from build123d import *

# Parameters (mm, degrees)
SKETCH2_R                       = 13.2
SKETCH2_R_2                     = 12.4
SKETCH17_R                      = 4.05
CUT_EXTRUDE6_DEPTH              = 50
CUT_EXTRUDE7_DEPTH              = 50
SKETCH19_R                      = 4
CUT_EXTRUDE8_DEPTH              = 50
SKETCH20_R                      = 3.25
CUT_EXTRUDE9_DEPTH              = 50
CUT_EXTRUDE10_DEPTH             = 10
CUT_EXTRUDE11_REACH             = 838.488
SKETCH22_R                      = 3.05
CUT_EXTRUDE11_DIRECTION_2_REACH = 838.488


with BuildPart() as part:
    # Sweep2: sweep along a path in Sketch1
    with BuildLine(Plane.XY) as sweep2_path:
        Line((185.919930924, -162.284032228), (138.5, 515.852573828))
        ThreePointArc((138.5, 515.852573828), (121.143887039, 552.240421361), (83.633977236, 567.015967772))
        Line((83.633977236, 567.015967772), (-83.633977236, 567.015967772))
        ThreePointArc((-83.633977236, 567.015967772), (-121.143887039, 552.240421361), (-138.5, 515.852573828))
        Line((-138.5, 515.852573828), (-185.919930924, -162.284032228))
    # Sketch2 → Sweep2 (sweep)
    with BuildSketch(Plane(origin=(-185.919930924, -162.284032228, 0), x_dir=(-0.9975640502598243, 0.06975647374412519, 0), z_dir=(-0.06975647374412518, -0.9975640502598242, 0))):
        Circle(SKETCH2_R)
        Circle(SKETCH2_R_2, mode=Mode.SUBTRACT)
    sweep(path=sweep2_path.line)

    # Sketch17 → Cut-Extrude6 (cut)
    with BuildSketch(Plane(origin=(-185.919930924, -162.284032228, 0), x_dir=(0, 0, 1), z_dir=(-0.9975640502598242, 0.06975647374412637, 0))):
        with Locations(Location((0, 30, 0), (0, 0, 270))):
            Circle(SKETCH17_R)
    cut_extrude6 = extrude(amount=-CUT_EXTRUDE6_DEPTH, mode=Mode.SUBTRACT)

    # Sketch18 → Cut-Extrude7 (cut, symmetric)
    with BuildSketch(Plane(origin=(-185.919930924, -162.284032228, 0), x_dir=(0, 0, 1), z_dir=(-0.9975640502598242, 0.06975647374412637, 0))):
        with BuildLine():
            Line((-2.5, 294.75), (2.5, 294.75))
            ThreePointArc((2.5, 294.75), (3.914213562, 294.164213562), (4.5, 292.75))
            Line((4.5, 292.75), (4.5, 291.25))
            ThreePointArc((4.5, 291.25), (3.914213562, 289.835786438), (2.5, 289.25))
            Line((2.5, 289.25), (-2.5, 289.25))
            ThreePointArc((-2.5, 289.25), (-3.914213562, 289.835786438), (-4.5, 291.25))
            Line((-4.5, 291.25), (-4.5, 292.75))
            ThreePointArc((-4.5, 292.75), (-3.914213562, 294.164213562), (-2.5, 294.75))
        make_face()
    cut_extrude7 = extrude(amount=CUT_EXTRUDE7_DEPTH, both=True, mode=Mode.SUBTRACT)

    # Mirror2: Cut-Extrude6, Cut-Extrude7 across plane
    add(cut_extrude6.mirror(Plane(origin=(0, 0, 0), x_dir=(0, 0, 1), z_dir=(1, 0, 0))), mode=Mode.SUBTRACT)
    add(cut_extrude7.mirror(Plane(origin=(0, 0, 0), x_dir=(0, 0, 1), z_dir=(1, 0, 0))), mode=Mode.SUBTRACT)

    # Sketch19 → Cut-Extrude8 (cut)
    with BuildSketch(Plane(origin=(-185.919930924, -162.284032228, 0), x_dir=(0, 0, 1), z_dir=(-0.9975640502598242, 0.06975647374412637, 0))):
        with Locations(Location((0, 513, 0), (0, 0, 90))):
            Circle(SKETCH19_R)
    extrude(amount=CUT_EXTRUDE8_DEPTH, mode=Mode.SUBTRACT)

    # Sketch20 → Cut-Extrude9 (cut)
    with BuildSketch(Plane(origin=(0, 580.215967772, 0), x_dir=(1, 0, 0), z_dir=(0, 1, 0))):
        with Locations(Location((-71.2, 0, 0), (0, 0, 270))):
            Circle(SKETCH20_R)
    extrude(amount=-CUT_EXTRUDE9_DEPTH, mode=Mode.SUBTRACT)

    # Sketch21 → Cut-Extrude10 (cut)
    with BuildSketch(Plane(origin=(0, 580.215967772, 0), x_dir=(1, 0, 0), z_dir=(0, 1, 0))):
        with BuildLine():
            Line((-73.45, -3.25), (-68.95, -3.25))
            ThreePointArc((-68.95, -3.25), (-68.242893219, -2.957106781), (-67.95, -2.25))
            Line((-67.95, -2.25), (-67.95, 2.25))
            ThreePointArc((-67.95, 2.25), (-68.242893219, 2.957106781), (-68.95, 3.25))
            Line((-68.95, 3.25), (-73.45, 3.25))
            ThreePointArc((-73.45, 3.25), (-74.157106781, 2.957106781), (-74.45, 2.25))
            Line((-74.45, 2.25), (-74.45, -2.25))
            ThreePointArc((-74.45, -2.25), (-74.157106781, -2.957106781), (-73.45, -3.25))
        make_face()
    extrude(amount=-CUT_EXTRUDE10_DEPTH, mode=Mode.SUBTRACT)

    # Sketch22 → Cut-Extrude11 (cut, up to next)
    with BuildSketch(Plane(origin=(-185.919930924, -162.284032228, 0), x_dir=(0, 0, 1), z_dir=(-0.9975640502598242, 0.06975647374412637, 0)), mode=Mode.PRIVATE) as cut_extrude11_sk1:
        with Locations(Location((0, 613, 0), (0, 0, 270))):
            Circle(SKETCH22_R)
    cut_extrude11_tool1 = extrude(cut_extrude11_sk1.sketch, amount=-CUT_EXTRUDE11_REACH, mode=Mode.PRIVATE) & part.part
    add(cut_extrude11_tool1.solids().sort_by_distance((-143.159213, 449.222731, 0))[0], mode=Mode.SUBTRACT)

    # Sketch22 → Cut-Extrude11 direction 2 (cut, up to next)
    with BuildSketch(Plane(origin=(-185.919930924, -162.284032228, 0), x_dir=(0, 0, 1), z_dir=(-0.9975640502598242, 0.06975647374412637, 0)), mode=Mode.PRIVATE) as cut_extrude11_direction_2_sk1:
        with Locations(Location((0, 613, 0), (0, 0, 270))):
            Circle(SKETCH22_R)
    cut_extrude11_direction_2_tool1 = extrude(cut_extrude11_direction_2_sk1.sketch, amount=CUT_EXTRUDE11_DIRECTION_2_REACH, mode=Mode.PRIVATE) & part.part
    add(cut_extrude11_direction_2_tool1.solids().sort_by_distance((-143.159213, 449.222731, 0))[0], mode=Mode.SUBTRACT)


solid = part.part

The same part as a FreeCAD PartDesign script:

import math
import FreeCAD as App
import Part
import Sketcher
from FreeCAD import Vector
Q = App.Units.Quantity

doc = App.newDocument("Part")
params = doc.addObject("Spreadsheet::Sheet", "Params")
for row, (alias, value) in enumerate([
    ("sketch1_diameter", "26.4 mm"),
    ("sketch1_diameter2", "24.8 mm"),
    ("sketch2_radius", "55 mm"),
    ("sketch3_diameter", "8.1 mm"),
    ("pocket1_length", "50 mm"),
    ("sketch4_radius", "2 mm"),
    ("sketch4_width", "5 mm"),
    ("sketch4_height", "1.5 mm"),
    ("pocket2_length", "100 mm"),
    ("sketch5_diameter", "8 mm"),
    ("pocket3_length", "50 mm"),
    ("sketch6_diameter", "6.5 mm"),
    ("pocket4_length", "50 mm"),
    ("sketch7_radius", "1 mm"),
    ("sketch7_width", "4.5 mm"),
    ("pocket5_length", "10 mm"),
    ("sketch8_diameter", "6.1 mm"),
    ("pocket6_length", "13.2 mm"),
    ("sketch9_diameter", "6.1 mm"),
    ("pocket7_length", "13.2 mm"),
], start=1):
    params.set(f"A{row}", alias)
    params.set(f"B{row}", "=" + value)
    params.setAlias(f"B{row}", alias)

body = doc.addObject("PartDesign::Body", "Body")

sketch1 = body.newObject("Sketcher::SketchObject", "Sketch")
sketch1.Placement = App.Placement(Vector(-185.919931, -162.284032, 0), App.Rotation(Vector(-0.99756405, 0.069756474, 0), Vector(0, 0, -1), Vector(-0.069756474, -0.99756405, 0), "ZXY"))
sketch1.addGeometry([
    Part.Circle(Vector(0, 0, 0), Vector(0, 0, 1), 13.2),
    Part.Circle(Vector(0, 0, 0), Vector(0, 0, 1), 12.4),
], False)
sketch1.addConstraint([
    Sketcher.Constraint("Coincident", 0, 3, -1, 1),
    Sketcher.Constraint("Coincident", 1, 3, -1, 1),
    Sketcher.Constraint("Diameter", 0, Q("26.4 mm")),
    Sketcher.Constraint("Diameter", 1, Q("24.8 mm")),
])
sketch1.setExpression("Constraints[2]", "Params.sketch1_diameter")
sketch1.setExpression("Constraints[3]", "Params.sketch1_diameter2")

sketch2 = body.newObject("Sketcher::SketchObject", "Sketch001")
sketch2.AttachmentSupport = (doc.getObject("XY_Plane"), [""])
sketch2.MapMode = "FlatFace"
sketch2.addGeometry([
    Part.LineSegment(Vector(185.919931, -162.284032, 0), Vector(138.5, 515.852574, 0)),
    Part.ArcOfCircle(Part.Circle(Vector(83.633977, 512.015968, 0), Vector(0, 0, 1), 55), math.radians(4), math.radians(90)),
    Part.LineSegment(Vector(83.633977, 567.015968, 0), Vector(-83.633977, 567.015968, 0)),
    Part.ArcOfCircle(Part.Circle(Vector(-83.633977, 512.015968, 0), Vector(0, 0, 1), 55), math.radians(90), math.radians(176)),
    Part.LineSegment(Vector(-138.5, 515.852574, 0), Vector(-185.919931, -162.284032, 0)),
], False)
sketch2.addConstraint([
    Sketcher.Constraint("Tangent", 0, 2, 1, 1),
    Sketcher.Constraint("Tangent", 1, 2, 2, 1),
    Sketcher.Constraint("Tangent", 2, 2, 3, 1),
    Sketcher.Constraint("Tangent", 3, 2, 4, 1),
    Sketcher.Constraint("Horizontal", 2),
    Sketcher.Constraint("Equal", 1, 3),
    Sketcher.Constraint("Symmetric", 0, 2, 3, 2, -2),
    Sketcher.Constraint("Horizontal", 0, 1, 4, 2),
    Sketcher.Constraint("Radius", 1, Q("55 mm")),
    Sketcher.Constraint("Angle", 0, Q("94 deg")),
    Sketcher.Constraint("DistanceX", 3, 2, 0, 2, Q("277 mm")),
    Sketcher.Constraint("DistanceY", 0, 1, 1, 3, Q("674.3 mm")),
    Sketcher.Constraint("DistanceY", -1, 1, 1, 3, Q("512.015968 mm")),
])
sketch2.setExpression("Constraints[8]", "Params.sketch2_radius")
doc.recompute()

additivepipe = body.newObject("PartDesign::AdditivePipe", "AdditivePipe")
additivepipe.Profile = sketch1
additivepipe.Spine = (sketch2, ["Edge1", "Edge2", "Edge3", "Edge4", "Edge5"])

sketch3 = body.newObject("Sketcher::SketchObject", "Sketch002")
sketch3.Placement = App.Placement(Vector(-185.919931, -162.284032, 0), App.Rotation(Vector(0, 0, 1), Vector(0.069756474, 0.99756405, 0), Vector(-0.99756405, 0.069756474, 0), "ZXY"))
sketch3.addGeometry(Part.Circle(Vector(0, 30, 0), Vector(0, 0, 1), 4.05), False)
sketch3.addConstraint([
    Sketcher.Constraint("PointOnObject", 0, 3, -2),
    Sketcher.Constraint("Diameter", 0, Q("8.1 mm")),
    Sketcher.Constraint("DistanceY", -1, 1, 0, 3, Q("30 mm")),
])
sketch3.setExpression("Constraints[1]", "Params.sketch3_diameter")
pocket1 = body.newObject("PartDesign::Pocket", "Pocket")
pocket1.Profile = sketch3
pocket1.setExpression("Length", "Params.pocket1_length")

sketch4 = body.newObject("Sketcher::SketchObject", "Sketch003")
sketch4.Placement = App.Placement(Vector(-185.919931, -162.284032, 0), App.Rotation(Vector(0, 0, 1), Vector(0.069756474, 0.99756405, 0), Vector(-0.99756405, 0.069756474, 0), "ZXY"))
sketch4.addGeometry([
    Part.LineSegment(Vector(2.5, 294.75, 0), Vector(-2.5, 294.75, 0)),
    Part.ArcOfCircle(Part.Circle(Vector(-2.5, 292.75, 0), Vector(0, 0, 1), 2), math.radians(90), math.radians(180)),
    Part.LineSegment(Vector(-4.5, 292.75, 0), Vector(-4.5, 291.25, 0)),
    Part.ArcOfCircle(Part.Circle(Vector(-2.5, 291.25, 0), Vector(0, 0, 1), 2), math.radians(-180), math.radians(-90)),
    Part.LineSegment(Vector(-2.5, 289.25, 0), Vector(2.5, 289.25, 0)),
    Part.ArcOfCircle(Part.Circle(Vector(2.5, 291.25, 0), Vector(0, 0, 1), 2), math.radians(-90), math.radians(0)),
    Part.LineSegment(Vector(4.5, 291.25, 0), Vector(4.5, 292.75, 0)),
    Part.ArcOfCircle(Part.Circle(Vector(2.5, 292.75, 0), Vector(0, 0, 1), 2), math.radians(0), math.radians(90)),
], False)
sketch4.addConstraint([
    Sketcher.Constraint("Tangent", 0, 2, 1, 1),
    Sketcher.Constraint("Tangent", 1, 2, 2, 1),
    Sketcher.Constraint("Tangent", 2, 2, 3, 1),
    Sketcher.Constraint("Tangent", 3, 2, 4, 1),
    Sketcher.Constraint("Tangent", 4, 2, 5, 1),
    Sketcher.Constraint("Tangent", 5, 2, 6, 1),
    Sketcher.Constraint("Tangent", 6, 2, 7, 1),
    Sketcher.Constraint("Tangent", 7, 2, 0, 1),
    Sketcher.Constraint("Horizontal", 0),
    Sketcher.Constraint("Vertical", 2),
    Sketcher.Constraint("Horizontal", 4),
    Sketcher.Constraint("Vertical", 6),
    Sketcher.Constraint("Equal", 1, 3),
    Sketcher.Constraint("Equal", 3, 5),
    Sketcher.Constraint("Equal", 5, 7),
    Sketcher.Constraint("Radius", 1, Q("2 mm")),
    Sketcher.Constraint("DistanceX", 0, 2, 0, 1, Q("5 mm")),
    Sketcher.Constraint("DistanceY", 2, 2, 2, 1, Q("1.5 mm")),
    Sketcher.Constraint("DistanceX", 1, 3, -1, 1, Q("2.5 mm")),
    Sketcher.Constraint("DistanceY", -1, 1, 1, 3, Q("292.75 mm")),
])
sketch4.setExpression("Constraints[15]", "Params.sketch4_radius")
sketch4.setExpression("Constraints[16]", "Params.sketch4_width")
sketch4.setExpression("Constraints[17]", "Params.sketch4_height")
pocket2 = body.newObject("PartDesign::Pocket", "Pocket001")
pocket2.Profile = sketch4
pocket2.setExpression("Length", "Params.pocket2_length")
pocket2.Midplane = True
doc.recompute()

mirrored = body.newObject("PartDesign::Mirrored", "Mirrored")
mirrored.Originals = [pocket1, pocket2]
mirrored.MirrorPlane = (doc.getObject("YZ_Plane"), [""])
body.Tip = mirrored

sketch5 = body.newObject("Sketcher::SketchObject", "Sketch004")
sketch5.Placement = App.Placement(Vector(-185.919931, -162.284032, 0), App.Rotation(Vector(0, 0, 1), Vector(0.069756474, 0.99756405, 0), Vector(-0.99756405, 0.069756474, 0), "ZXY"))
sketch5.addGeometry(Part.Circle(Vector(0, 513, 0), Vector(0, 0, 1), 4), False)
sketch5.addConstraint([
    Sketcher.Constraint("PointOnObject", 0, 3, -2),
    Sketcher.Constraint("Diameter", 0, Q("8 mm")),
    Sketcher.Constraint("DistanceY", -1, 1, 0, 3, Q("513 mm")),
])
sketch5.setExpression("Constraints[1]", "Params.sketch5_diameter")
pocket3 = body.newObject("PartDesign::Pocket", "Pocket002")
pocket3.Profile = sketch5
pocket3.setExpression("Length", "Params.pocket3_length")
pocket3.Reversed = True

sketch6 = body.newObject("Sketcher::SketchObject", "Sketch005")
sketch6.AttachmentSupport = (doc.getObject("XZ_Plane"), [""])
sketch6.MapMode = "FlatFace"
sketch6.AttachmentOffset = App.Placement(Vector(0, 0, -580.215968), App.Rotation())
sketch6.addGeometry(Part.Circle(Vector(-71.2, 0, 0), Vector(0, 0, 1), 3.25), False)
sketch6.addConstraint([
    Sketcher.Constraint("PointOnObject", 0, 3, -1),
    Sketcher.Constraint("Diameter", 0, Q("6.5 mm")),
    Sketcher.Constraint("DistanceX", 0, 3, -1, 1, Q("71.2 mm")),
])
sketch6.setExpression("Constraints[1]", "Params.sketch6_diameter")
pocket4 = body.newObject("PartDesign::Pocket", "Pocket003")
pocket4.Profile = sketch6
pocket4.setExpression("Length", "Params.pocket4_length")
pocket4.Reversed = True

sketch7 = body.newObject("Sketcher::SketchObject", "Sketch006")
sketch7.AttachmentSupport = (doc.getObject("XZ_Plane"), [""])
sketch7.MapMode = "FlatFace"
sketch7.AttachmentOffset = App.Placement(Vector(0, 0, -580.215968), App.Rotation())
sketch7.addGeometry([
    Part.LineSegment(Vector(-73.45, 3.25, 0), Vector(-68.95, 3.25, 0)),
    Part.ArcOfCircle(Part.Circle(Vector(-68.95, 2.25, 0), Vector(0, 0, 1), 1), math.radians(0), math.radians(90)),
    Part.LineSegment(Vector(-67.95, 2.25, 0), Vector(-67.95, -2.25, 0)),
    Part.ArcOfCircle(Part.Circle(Vector(-68.95, -2.25, 0), Vector(0, 0, 1), 1), math.radians(-90), math.radians(0)),
    Part.LineSegment(Vector(-68.95, -3.25, 0), Vector(-73.45, -3.25, 0)),
    Part.ArcOfCircle(Part.Circle(Vector(-73.45, -2.25, 0), Vector(0, 0, 1), 1), math.radians(-180), math.radians(-90)),
    Part.LineSegment(Vector(-74.45, -2.25, 0), Vector(-74.45, 2.25, 0)),
    Part.ArcOfCircle(Part.Circle(Vector(-73.45, 2.25, 0), Vector(0, 0, 1), 1), math.radians(90), math.radians(180)),
], False)
sketch7.addConstraint([
    Sketcher.Constraint("Tangent", 0, 2, 1, 2),
    Sketcher.Constraint("Tangent", 1, 1, 2, 1),
    Sketcher.Constraint("Tangent", 2, 2, 3, 2),
    Sketcher.Constraint("Tangent", 3, 1, 4, 1),
    Sketcher.Constraint("Tangent", 4, 2, 5, 2),
    Sketcher.Constraint("Tangent", 5, 1, 6, 1),
    Sketcher.Constraint("Tangent", 6, 2, 7, 2),
    Sketcher.Constraint("Tangent", 7, 1, 0, 1),
    Sketcher.Constraint("Horizontal", 0),
    Sketcher.Constraint("Vertical", 2),
    Sketcher.Constraint("Horizontal", 4),
    Sketcher.Constraint("Vertical", 6),
    Sketcher.Constraint("Equal", 1, 3),
    Sketcher.Constraint("Equal", 3, 5),
    Sketcher.Constraint("Equal", 5, 7),
    Sketcher.Constraint("Equal", 4, 2),
    Sketcher.Constraint("Radius", 1, Q("1 mm")),
    Sketcher.Constraint("DistanceX", 0, 1, 0, 2, Q("4.5 mm")),
    Sketcher.Constraint("DistanceX", 1, 3, -1, 1, Q("68.95 mm")),
    Sketcher.Constraint("DistanceY", -1, 1, 1, 3, Q("2.25 mm")),
])
sketch7.setExpression("Constraints[16]", "Params.sketch7_radius")
sketch7.setExpression("Constraints[17]", "Params.sketch7_width")
pocket5 = body.newObject("PartDesign::Pocket", "Pocket004")
pocket5.Profile = sketch7
pocket5.setExpression("Length", "Params.pocket5_length")
pocket5.Reversed = True

sketch8 = body.newObject("Sketcher::SketchObject", "Sketch007")
sketch8.Placement = App.Placement(Vector(-185.919931, -162.284032, 0), App.Rotation(Vector(0, 0, 1), Vector(0.069756474, 0.99756405, 0), Vector(-0.99756405, 0.069756474, 0), "ZXY"))
sketch8.addGeometry(Part.Circle(Vector(0, 613, 0), Vector(0, 0, 1), 3.05), False)
sketch8.addConstraint([
    Sketcher.Constraint("PointOnObject", 0, 3, -2),
    Sketcher.Constraint("Diameter", 0, Q("6.1 mm")),
    Sketcher.Constraint("DistanceY", -1, 1, 0, 3, Q("613 mm")),
])
sketch8.setExpression("Constraints[1]", "Params.sketch8_diameter")
pocket6 = body.newObject("PartDesign::Pocket", "Pocket005")
pocket6.Profile = sketch8
pocket6.setExpression("Length", "Params.pocket6_length")

sketch9 = body.newObject("Sketcher::SketchObject", "Sketch008")
sketch9.Placement = App.Placement(Vector(-185.919931, -162.284032, 0), App.Rotation(Vector(0, 0, 1), Vector(0.069756474, 0.99756405, 0), Vector(-0.99756405, 0.069756474, 0), "ZXY"))
sketch9.addGeometry(Part.Circle(Vector(0, 613, 0), Vector(0, 0, 1), 3.05), False)
sketch9.addConstraint([
    Sketcher.Constraint("PointOnObject", 0, 3, -2),
    Sketcher.Constraint("Diameter", 0, Q("6.1 mm")),
    Sketcher.Constraint("DistanceY", -1, 1, 0, 3, Q("613 mm")),
])
sketch9.setExpression("Constraints[1]", "Params.sketch9_diameter")
pocket7 = body.newObject("PartDesign::Pocket", "Pocket006")
pocket7.Profile = sketch9
pocket7.setExpression("Length", "Params.pocket7_length")
pocket7.Reversed = True

doc.recompute()
